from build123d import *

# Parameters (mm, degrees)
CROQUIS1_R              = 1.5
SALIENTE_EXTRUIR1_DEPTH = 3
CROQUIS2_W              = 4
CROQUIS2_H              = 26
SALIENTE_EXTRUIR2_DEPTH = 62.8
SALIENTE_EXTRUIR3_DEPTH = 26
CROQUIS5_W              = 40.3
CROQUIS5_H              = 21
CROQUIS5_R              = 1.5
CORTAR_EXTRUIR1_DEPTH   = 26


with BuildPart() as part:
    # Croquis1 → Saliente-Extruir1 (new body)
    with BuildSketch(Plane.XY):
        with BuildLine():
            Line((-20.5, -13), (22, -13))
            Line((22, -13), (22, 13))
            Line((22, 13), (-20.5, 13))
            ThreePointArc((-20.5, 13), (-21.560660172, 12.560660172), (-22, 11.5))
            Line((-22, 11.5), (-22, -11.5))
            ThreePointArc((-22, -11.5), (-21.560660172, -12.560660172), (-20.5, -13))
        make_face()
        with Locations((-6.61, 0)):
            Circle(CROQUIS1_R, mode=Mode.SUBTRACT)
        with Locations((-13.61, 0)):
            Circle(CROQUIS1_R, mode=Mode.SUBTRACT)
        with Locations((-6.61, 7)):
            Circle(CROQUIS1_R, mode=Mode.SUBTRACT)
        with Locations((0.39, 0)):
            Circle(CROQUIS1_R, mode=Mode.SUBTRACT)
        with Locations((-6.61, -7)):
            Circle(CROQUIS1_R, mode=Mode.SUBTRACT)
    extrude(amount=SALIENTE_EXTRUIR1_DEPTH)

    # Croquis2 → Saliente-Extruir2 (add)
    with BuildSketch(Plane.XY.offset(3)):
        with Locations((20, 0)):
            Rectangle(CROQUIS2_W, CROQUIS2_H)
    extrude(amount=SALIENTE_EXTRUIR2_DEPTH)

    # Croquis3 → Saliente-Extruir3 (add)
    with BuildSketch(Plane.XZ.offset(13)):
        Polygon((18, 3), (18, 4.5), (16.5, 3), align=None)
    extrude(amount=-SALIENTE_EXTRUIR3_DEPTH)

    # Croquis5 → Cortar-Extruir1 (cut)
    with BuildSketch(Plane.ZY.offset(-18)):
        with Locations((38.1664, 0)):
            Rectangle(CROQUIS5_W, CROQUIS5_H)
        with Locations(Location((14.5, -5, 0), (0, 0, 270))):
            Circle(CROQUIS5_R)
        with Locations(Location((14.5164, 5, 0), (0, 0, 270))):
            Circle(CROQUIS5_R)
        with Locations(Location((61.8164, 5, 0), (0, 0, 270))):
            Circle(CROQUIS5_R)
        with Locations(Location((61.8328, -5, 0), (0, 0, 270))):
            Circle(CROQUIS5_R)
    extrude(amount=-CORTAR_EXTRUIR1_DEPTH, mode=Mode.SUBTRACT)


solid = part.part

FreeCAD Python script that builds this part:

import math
import FreeCAD as App
import Part
import Sketcher


def add_polygon(sketch, points):
    """Adds a closed chain of lines whose ends are joined by coincident constraints."""
    first, n = sketch.GeometryCount, len(points)
    for a, b in zip(points, points[1:] + points[:1]):
        sketch.addGeometry(Part.LineSegment(App.Vector(*a, 0), App.Vector(*b, 0)), False)
    for i in range(n):
        sketch.addConstraint(Sketcher.Constraint("Coincident", first + i, 2, first + (i + 1) % n, 1))

doc = App.newDocument("Part")
params = doc.addObject("Spreadsheet::Sheet", "Params")
for row, (alias, value) in enumerate([
    ("sketch1_diameter", "3 mm"),
    ("sketch1_height", "26 mm"),
    ("sketch1_width", "42.5 mm"),
    ("pad1_length", "3 mm"),
    ("sketch2_width", "4 mm"),
    ("sketch2_height", "26 mm"),
    ("pad2_length", "62.8 mm"),
    ("sketch3_width", "1.5 mm"),
    ("pad3_length", "26 mm"),
    ("sketch4_diameter", "3 mm"),
    ("sketch4_width", "21 mm"),
    ("sketch4_height", "40.3 mm"),
    ("pocket1_length", "26 mm"),
], start=1):
    params.set(f"A{row}", alias)
    params.set(f"B{row}", "=" + value)
    params.setAlias(f"B{row}", alias)

body = doc.addObject("PartDesign::Body", "Body")

sketch1 = body.newObject("Sketcher::SketchObject", "Sketch")
sketch1.AttachmentSupport = (doc.getObject("XY_Plane"), [""])
sketch1.MapMode = "FlatFace"
sketch1.addGeometry([
    Part.LineSegment(App.Vector(-20.5, -13, 0), App.Vector(22, -13, 0)),
    Part.LineSegment(App.Vector(22, -13, 0), App.Vector(22, 13, 0)),
    Part.LineSegment(App.Vector(22, 13, 0), App.Vector(-20.5, 13, 0)),
    Part.ArcOfCircle(Part.Circle(App.Vector(-20.5, 11.5, 0), App.Vector(0, 0, 1), 1.5), math.radians(90), math.radians(180)),
    Part.LineSegment(App.Vector(-22, 11.5, 0), App.Vector(-22, -11.5, 0)),
    Part.ArcOfCircle(Part.Circle(App.Vector(-20.5, -11.5, 0), App.Vector(0, 0, 1), 1.5), math.radians(180), math.radians(270)),
    Part.Circle(App.Vector(-6.61, -7, 0), App.Vector(0, 0, 1), 1.5),
    Part.Circle(App.Vector(-13.61, 0, 0), App.Vector(0, 0, 1), 1.5),
    Part.Circle(App.Vector(-6.61, 0, 0), App.Vector(0, 0, 1), 1.5),
    Part.Circle(App.Vector(-6.61, 7, 0), App.Vector(0, 0, 1), 1.5),
    Part.Circle(App.Vector(0.39, 0, 0), App.Vector(0, 0, 1), 1.5),
], False)
sketch1.addConstraint([
    Sketcher.Constraint("Coincident", 0, 2, 1, 1),
    Sketcher.Constraint("Coincident", 1, 2, 2, 1),
    Sketcher.Constraint("Tangent", 2, 2, 3, 1),
    Sketcher.Constraint("Tangent", 3, 2, 4, 1),
    Sketcher.Constraint("Tangent", 4, 2, 5, 1),
    Sketcher.Constraint("Tangent", 5, 2, 0, 1),
    Sketcher.Constraint("Horizontal", 0),
    Sketcher.Constraint("Vertical", 1),
    Sketcher.Constraint("Horizontal", 2),
    Sketcher.Constraint("Vertical", 4),
    Sketcher.Constraint("Equal", 3, 5),
    Sketcher.Constraint("Equal", 5, 6),
    Sketcher.Constraint("Equal", 6, 7),
    Sketcher.Constraint("Equal", 7, 8),
    Sketcher.Constraint("Equal", 8, 9),
    Sketcher.Constraint("Equal", 9, 10),
    Sketcher.Constraint("Symmetric", 6, 3, 9, 3, -1),
    Sketcher.Constraint("PointOnObject", 7, 3, -1),
    Sketcher.Constraint("PointOnObject", 8, 3, -1),
    Sketcher.Constraint("PointOnObject", 10, 3, -1),
    Sketcher.Constraint("Vertical", 6, 3, 8, 3),
    Sketcher.Constraint("Diameter", 6, 3.0),
    Sketcher.Constraint("DistanceY", 1, 1, 1, 2, 26.0),
    Sketcher.Constraint("DistanceX", 0, 1, 0, 2, 42.5),
    Sketcher.Constraint("DistanceY", 6, 3, -1, 1, 7.0),
    Sketcher.Constraint("DistanceX", -1, 1, 0, 2, 22.0),
    Sketcher.Constraint("DistanceY", 0, 2, -1, 1, 13.0),
    Sketcher.Constraint("DistanceX", 7, 3, 6, 3, 7.0),
    Sketcher.Constraint("DistanceX", 8, 3, 10, 3, 7.0),
    Sketcher.Constraint("DistanceX", 6, 3, -1, 1, 6.61),
])
sketch1.setExpression("Constraints[21]", "Params.sketch1_diameter")
sketch1.setExpression("Constraints[22]", "Params.sketch1_height")
sketch1.setExpression("Constraints[23]", "Params.sketch1_width")
pad1 = body.newObject("PartDesign::Pad", "Pad")
pad1.Profile = sketch1
pad1.setExpression("Length", "Params.pad1_length")

sketch2 = body.newObject("Sketcher::SketchObject", "Sketch001")
sketch2.AttachmentSupport = (doc.getObject("XY_Plane"), [""])
sketch2.MapMode = "FlatFace"
sketch2.AttachmentOffset = App.Placement(App.Vector(0, 0, 3), App.Rotation())
add_polygon(sketch2, [(18, 13), (18, -13), (22, -13), (22, 13)])
sketch2.addConstraint([
    Sketcher.Constraint("Vertical", 0),
    Sketcher.Constraint("Horizontal", 1),
    Sketcher.Constraint("Vertical", 2),
    Sketcher.Constraint("Horizontal", 3),
    Sketcher.Constraint("DistanceX", 1, 1, 1, 2, 4.0),
    Sketcher.Constraint("DistanceY", 0, 2, 0, 1, 26.0),
    Sketcher.Constraint("DistanceX", -1, 1, 0, 2, 18.0),
    Sketcher.Constraint("DistanceY", 0, 2, -1, 1, 13.0),
])
sketch2.setExpression("Constraints[8]", "Params.sketch2_width")
sketch2.setExpression("Constraints[9]", "Params.sketch2_height")
pad2 = body.newObject("PartDesign::Pad", "Pad001")
pad2.Profile = sketch2
pad2.setExpression("Length", "Params.pad2_length")

sketch3 = body.newObject("Sketcher::SketchObject", "Sketch002")
sketch3.AttachmentSupport = (doc.getObject("XZ_Plane"), [""])
sketch3.MapMode = "FlatFace"
sketch3.AttachmentOffset = App.Placement(App.Vector(0, 0, 13), App.Rotation())
add_polygon(sketch3, [(18, 3), (18, 4.5), (16.5, 3)])
sketch3.addConstraint([
    Sketcher.Constraint("Vertical", 0),
    Sketcher.Constraint("Horizontal", 2),
    Sketcher.Constraint("Equal", 2, 0),
    Sketcher.Constraint("DistanceX", 2, 1, 2, 2, 1.5),
    Sketcher.Constraint("DistanceX", -1, 1, 0, 2, 18.0),
    Sketcher.Constraint("DistanceY", -1, 1, 1, 2, 3.0),
])
sketch3.setExpression("Constraints[6]", "Params.sketch3_width")
pad3 = body.newObject("PartDesign::Pad", "Pad002")
pad3.Profile = sketch3
pad3.setExpression("Length", "Params.pad3_length")
pad3.Reversed = True

sketch4 = body.newObject("Sketcher::SketchObject", "Sketch003")
sketch4.AttachmentSupport = (doc.getObject("YZ_Plane"), [""])
sketch4.MapMode = "FlatFace"
sketch4.AttachmentOffset = App.Placement(App.Vector(0, 0, 18), App.Rotation())
add_polygon(sketch4, [(10.5, 18.0164), (-10.5, 18.0164), (-10.5, 58.3164), (10.5, 58.3164)])
sketch4.addGeometry(Part.Circle(App.Vector(-5, 14.5, 0), App.Vector(0, 0, 1), 1.5), False)
sketch4.addGeometry(Part.Circle(App.Vector(5, 14.5164, 0), App.Vector(0, 0, 1), 1.5), False)
sketch4.addGeometry(Part.Circle(App.Vector(5, 61.8164, 0), App.Vector(0, 0, 1), 1.5), False)
sketch4.addGeometry(Part.Circle(App.Vector(-5, 61.8328, 0), App.Vector(0, 0, 1), 1.5), False)
sketch4.addConstraint([
    Sketcher.Constraint("Horizontal", 0),
    Sketcher.Constraint("Vertical", 1),
    Sketcher.Constraint("Horizontal", 2),
    Sketcher.Constraint("Vertical", 3),
    Sketcher.Constraint("Equal", 4, 5),
    Sketcher.Constraint("Equal", 5, 6),
    Sketcher.Constraint("Equal", 6, 7),
    Sketcher.Constraint("Vertical", 5, 3, 6, 3),
    Sketcher.Constraint("Vertical", 4, 3, 7, 3),
    Sketcher.Constraint("Diameter", 4, 3.0),
    Sketcher.Constraint("DistanceX", 0, 2, 0, 1, 21.0),
    Sketcher.Constraint("DistanceY", 1, 1, 1, 2, 40.3),
    Sketcher.Constraint("DistanceX", 4, 3, -1, 1, 5.0),
    Sketcher.Constraint("DistanceX", -1, 1, 5, 3, 5.0),
    Sketcher.Constraint("DistanceY", -1, 1, 4, 3, 14.5),
    Sketcher.Constraint("DistanceX", 0, 2, -1, 1, 10.5),
    Sketcher.Constraint("DistanceY", 5, 3, 6, 3, 47.3),
    Sketcher.Constraint("DistanceY", 5, 3, 0, 2, 3.5),
    Sketcher.Constraint("DistanceY", -1, 1, 5, 3, 14.5164),
    Sketcher.Constraint("DistanceY", -1, 1, 7, 3, 61.8328),
])
sketch4.setExpression("Constraints[13]", "Params.sketch4_diameter")
sketch4.setExpression("Constraints[14]", "Params.sketch4_width")
sketch4.setExpression("Constraints[15]", "Params.sketch4_height")
pocket1 = body.newObject("PartDesign::Pocket", "Pocket")
pocket1.Profile = sketch4
pocket1.setExpression("Length", "Params.pocket1_length")
pocket1.Reversed = True

doc.recompute()
